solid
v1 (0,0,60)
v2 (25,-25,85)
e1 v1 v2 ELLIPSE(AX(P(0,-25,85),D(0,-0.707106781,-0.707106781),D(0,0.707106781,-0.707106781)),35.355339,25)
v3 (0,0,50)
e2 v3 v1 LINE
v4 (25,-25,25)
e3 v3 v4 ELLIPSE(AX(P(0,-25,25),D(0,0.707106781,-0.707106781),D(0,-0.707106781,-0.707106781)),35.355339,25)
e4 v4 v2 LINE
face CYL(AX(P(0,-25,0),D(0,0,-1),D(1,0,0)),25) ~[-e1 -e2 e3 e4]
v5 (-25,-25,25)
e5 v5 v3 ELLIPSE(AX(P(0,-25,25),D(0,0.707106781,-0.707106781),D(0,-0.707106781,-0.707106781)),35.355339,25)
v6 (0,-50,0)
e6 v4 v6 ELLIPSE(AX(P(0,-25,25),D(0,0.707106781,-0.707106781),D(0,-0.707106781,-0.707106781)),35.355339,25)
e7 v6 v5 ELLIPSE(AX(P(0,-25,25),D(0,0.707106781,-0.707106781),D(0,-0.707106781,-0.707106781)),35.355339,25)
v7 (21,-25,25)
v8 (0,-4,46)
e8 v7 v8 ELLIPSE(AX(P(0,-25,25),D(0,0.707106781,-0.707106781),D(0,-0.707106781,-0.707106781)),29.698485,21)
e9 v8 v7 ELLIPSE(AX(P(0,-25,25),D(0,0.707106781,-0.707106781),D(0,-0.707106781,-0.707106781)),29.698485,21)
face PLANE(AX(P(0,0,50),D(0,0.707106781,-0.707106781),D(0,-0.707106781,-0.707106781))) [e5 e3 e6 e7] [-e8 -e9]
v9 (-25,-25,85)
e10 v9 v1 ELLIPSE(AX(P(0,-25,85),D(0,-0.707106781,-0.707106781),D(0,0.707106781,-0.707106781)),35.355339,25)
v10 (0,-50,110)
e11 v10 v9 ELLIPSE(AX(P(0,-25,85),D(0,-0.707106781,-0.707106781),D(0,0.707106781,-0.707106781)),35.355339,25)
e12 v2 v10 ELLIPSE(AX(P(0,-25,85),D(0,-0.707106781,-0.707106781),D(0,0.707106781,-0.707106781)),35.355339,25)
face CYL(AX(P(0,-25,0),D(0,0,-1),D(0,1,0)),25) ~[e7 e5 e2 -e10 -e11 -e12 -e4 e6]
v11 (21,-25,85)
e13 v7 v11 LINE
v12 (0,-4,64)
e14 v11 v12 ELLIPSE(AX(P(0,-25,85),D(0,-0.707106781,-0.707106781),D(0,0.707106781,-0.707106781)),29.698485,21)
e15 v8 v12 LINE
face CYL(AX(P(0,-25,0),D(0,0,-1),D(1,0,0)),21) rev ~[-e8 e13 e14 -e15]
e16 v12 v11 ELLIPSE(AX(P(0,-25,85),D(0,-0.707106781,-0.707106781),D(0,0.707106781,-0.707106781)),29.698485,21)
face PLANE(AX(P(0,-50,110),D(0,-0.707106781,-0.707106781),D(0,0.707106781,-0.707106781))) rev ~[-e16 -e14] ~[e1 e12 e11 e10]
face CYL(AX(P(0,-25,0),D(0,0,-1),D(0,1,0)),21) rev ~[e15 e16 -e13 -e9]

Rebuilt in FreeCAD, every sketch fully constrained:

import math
import FreeCAD as App
import Part
import Sketcher
from FreeCAD import Vector
Q = App.Units.Quantity

doc = App.newDocument("Part")
body = doc.addObject("PartDesign::Body", "Body")

# Sketch on XY plane
sketch1 = body.newObject("Sketcher::SketchObject", "Sketch")
sketch1.AttachmentSupport = (doc.getObject("XY_Plane"), [""])
sketch1.MapMode = "FlatFace"
sketch1.addGeometry(Part.ArcOfCircle(Part.Circle(Vector(0, -25, 0), Vector(0, 0, 1), 25), math.radians(0), math.radians(90)), False)
sketch1.addGeometry(Part.ArcOfCircle(Part.Circle(Vector(0, -25, 0), Vector(0, 0, 1), 25), math.radians(90), math.radians(360)), False)
sketch1.addGeometry(Part.ArcOfCircle(Part.Circle(Vector(0, -25, 0), Vector(0, 0, 1), 21), math.radians(0), math.radians(90)), False)
sketch1.addGeometry(Part.ArcOfCircle(Part.Circle(Vector(0, -25, 0), Vector(0, 0, 1), 21), math.radians(90), math.radians(360)), False)
sketch1.addConstraint(Sketcher.Constraint("Tangent", 0, 1, 1, 2))
sketch1.addConstraint(Sketcher.Constraint("Coincident", 1, 1, 0, 2))
sketch1.addConstraint(Sketcher.Constraint("Tangent", 2, 1, 3, 2))
sketch1.addConstraint(Sketcher.Constraint("Coincident", 3, 1, 2, 2))
sketch1.addConstraint(Sketcher.Constraint("Coincident", 1, 1, -1, 1))
sketch1.addConstraint(Sketcher.Constraint("Coincident", 2, 3, 0, 3))
sketch1.addConstraint(Sketcher.Constraint("PointOnObject", 0, 3, -2))
sketch1.addConstraint(Sketcher.Constraint("PointOnObject", 3, 1, -2))
sketch1.addConstraint(Sketcher.Constraint("Horizontal", 3, 3, 0, 1))
sketch1.addConstraint(Sketcher.Constraint("Horizontal", 0, 1, 2, 1))
sketch1.addConstraint(Sketcher.Constraint("Radius", 0, Q("25 mm")))
sketch1.addConstraint(Sketcher.Constraint("Radius", 2, Q("21 mm")))
pad1 = body.newObject("PartDesign::Pad", "Pad")
pad1.Profile = sketch1
pad1.Length = 110

# Sketch on YZ plane
sketch2 = body.newObject("Sketcher::SketchObject", "Sketch001")
sketch2.AttachmentSupport = (doc.getObject("YZ_Plane"), [""])
sketch2.MapMode = "FlatFace"
sketch2.addGeometry(Part.LineSegment(Vector(-50, 0, 0), Vector(0, 0, 0)), False)
sketch2.addGeometry(Part.LineSegment(Vector(0, 0, 0), Vector(0, 50, 0)), False)
sketch2.addGeometry(Part.LineSegment(Vector(0, 50, 0), Vector(-50, 0, 0)), False)
sketch2.addGeometry(Part.LineSegment(Vector(0, 60, 0), Vector(0, 110, 0)), False)
sketch2.addGeometry(Part.LineSegment(Vector(0, 110, 0), Vector(-50, 110, 0)), False)
sketch2.addGeometry(Part.LineSegment(Vector(-50, 110, 0), Vector(0, 60, 0)), False)
sketch2.addConstraint(Sketcher.Constraint("Coincident", 0, 2, 1, 1))
sketch2.addConstraint(Sketcher.Constraint("Coincident", 1, 2, 2, 1))
sketch2.addConstraint(Sketcher.Constraint("Coincident", 2, 2, 0, 1))
sketch2.addConstraint(Sketcher.Constraint("Coincident", 3, 2, 4, 1))
sketch2.addConstraint(Sketcher.Constraint("Coincident", 4, 2, 5, 1))
sketch2.addConstraint(Sketcher.Constraint("Coincident", 5, 2, 3, 1))
sketch2.addConstraint(Sketcher.Constraint("Horizontal", 0))
sketch2.addConstraint(Sketcher.Constraint("Vertical", 1))
sketch2.addConstraint(Sketcher.Constraint("Vertical", 3))
sketch2.addConstraint(Sketcher.Constraint("Horizontal", 4))
sketch2.addConstraint(Sketcher.Constraint("Coincident", 0, 2, -1, 1))
sketch2.addConstraint(Sketcher.Constraint("PointOnObject", 3, 2, -2))
sketch2.addConstraint(Sketcher.Constraint("Perpendicular", 2, 5))
sketch2.addConstraint(Sketcher.Constraint("Vertical", 2, 2, 4, 2))
sketch2.addConstraint(Sketcher.Constraint("Equal", 4, 1))
sketch2.addConstraint(Sketcher.Constraint("DistanceX", 0, 1, 0, 2, Q("50 mm")))
sketch2.addConstraint(Sketcher.Constraint("DistanceY", -1, 1, 3, 2, Q("110 mm")))
pocket1 = body.newObject("PartDesign::Pocket", "Pocket")
pocket1.Profile = sketch2
pocket1.Length = 50
pocket1.Midplane = True

doc.recompute()
